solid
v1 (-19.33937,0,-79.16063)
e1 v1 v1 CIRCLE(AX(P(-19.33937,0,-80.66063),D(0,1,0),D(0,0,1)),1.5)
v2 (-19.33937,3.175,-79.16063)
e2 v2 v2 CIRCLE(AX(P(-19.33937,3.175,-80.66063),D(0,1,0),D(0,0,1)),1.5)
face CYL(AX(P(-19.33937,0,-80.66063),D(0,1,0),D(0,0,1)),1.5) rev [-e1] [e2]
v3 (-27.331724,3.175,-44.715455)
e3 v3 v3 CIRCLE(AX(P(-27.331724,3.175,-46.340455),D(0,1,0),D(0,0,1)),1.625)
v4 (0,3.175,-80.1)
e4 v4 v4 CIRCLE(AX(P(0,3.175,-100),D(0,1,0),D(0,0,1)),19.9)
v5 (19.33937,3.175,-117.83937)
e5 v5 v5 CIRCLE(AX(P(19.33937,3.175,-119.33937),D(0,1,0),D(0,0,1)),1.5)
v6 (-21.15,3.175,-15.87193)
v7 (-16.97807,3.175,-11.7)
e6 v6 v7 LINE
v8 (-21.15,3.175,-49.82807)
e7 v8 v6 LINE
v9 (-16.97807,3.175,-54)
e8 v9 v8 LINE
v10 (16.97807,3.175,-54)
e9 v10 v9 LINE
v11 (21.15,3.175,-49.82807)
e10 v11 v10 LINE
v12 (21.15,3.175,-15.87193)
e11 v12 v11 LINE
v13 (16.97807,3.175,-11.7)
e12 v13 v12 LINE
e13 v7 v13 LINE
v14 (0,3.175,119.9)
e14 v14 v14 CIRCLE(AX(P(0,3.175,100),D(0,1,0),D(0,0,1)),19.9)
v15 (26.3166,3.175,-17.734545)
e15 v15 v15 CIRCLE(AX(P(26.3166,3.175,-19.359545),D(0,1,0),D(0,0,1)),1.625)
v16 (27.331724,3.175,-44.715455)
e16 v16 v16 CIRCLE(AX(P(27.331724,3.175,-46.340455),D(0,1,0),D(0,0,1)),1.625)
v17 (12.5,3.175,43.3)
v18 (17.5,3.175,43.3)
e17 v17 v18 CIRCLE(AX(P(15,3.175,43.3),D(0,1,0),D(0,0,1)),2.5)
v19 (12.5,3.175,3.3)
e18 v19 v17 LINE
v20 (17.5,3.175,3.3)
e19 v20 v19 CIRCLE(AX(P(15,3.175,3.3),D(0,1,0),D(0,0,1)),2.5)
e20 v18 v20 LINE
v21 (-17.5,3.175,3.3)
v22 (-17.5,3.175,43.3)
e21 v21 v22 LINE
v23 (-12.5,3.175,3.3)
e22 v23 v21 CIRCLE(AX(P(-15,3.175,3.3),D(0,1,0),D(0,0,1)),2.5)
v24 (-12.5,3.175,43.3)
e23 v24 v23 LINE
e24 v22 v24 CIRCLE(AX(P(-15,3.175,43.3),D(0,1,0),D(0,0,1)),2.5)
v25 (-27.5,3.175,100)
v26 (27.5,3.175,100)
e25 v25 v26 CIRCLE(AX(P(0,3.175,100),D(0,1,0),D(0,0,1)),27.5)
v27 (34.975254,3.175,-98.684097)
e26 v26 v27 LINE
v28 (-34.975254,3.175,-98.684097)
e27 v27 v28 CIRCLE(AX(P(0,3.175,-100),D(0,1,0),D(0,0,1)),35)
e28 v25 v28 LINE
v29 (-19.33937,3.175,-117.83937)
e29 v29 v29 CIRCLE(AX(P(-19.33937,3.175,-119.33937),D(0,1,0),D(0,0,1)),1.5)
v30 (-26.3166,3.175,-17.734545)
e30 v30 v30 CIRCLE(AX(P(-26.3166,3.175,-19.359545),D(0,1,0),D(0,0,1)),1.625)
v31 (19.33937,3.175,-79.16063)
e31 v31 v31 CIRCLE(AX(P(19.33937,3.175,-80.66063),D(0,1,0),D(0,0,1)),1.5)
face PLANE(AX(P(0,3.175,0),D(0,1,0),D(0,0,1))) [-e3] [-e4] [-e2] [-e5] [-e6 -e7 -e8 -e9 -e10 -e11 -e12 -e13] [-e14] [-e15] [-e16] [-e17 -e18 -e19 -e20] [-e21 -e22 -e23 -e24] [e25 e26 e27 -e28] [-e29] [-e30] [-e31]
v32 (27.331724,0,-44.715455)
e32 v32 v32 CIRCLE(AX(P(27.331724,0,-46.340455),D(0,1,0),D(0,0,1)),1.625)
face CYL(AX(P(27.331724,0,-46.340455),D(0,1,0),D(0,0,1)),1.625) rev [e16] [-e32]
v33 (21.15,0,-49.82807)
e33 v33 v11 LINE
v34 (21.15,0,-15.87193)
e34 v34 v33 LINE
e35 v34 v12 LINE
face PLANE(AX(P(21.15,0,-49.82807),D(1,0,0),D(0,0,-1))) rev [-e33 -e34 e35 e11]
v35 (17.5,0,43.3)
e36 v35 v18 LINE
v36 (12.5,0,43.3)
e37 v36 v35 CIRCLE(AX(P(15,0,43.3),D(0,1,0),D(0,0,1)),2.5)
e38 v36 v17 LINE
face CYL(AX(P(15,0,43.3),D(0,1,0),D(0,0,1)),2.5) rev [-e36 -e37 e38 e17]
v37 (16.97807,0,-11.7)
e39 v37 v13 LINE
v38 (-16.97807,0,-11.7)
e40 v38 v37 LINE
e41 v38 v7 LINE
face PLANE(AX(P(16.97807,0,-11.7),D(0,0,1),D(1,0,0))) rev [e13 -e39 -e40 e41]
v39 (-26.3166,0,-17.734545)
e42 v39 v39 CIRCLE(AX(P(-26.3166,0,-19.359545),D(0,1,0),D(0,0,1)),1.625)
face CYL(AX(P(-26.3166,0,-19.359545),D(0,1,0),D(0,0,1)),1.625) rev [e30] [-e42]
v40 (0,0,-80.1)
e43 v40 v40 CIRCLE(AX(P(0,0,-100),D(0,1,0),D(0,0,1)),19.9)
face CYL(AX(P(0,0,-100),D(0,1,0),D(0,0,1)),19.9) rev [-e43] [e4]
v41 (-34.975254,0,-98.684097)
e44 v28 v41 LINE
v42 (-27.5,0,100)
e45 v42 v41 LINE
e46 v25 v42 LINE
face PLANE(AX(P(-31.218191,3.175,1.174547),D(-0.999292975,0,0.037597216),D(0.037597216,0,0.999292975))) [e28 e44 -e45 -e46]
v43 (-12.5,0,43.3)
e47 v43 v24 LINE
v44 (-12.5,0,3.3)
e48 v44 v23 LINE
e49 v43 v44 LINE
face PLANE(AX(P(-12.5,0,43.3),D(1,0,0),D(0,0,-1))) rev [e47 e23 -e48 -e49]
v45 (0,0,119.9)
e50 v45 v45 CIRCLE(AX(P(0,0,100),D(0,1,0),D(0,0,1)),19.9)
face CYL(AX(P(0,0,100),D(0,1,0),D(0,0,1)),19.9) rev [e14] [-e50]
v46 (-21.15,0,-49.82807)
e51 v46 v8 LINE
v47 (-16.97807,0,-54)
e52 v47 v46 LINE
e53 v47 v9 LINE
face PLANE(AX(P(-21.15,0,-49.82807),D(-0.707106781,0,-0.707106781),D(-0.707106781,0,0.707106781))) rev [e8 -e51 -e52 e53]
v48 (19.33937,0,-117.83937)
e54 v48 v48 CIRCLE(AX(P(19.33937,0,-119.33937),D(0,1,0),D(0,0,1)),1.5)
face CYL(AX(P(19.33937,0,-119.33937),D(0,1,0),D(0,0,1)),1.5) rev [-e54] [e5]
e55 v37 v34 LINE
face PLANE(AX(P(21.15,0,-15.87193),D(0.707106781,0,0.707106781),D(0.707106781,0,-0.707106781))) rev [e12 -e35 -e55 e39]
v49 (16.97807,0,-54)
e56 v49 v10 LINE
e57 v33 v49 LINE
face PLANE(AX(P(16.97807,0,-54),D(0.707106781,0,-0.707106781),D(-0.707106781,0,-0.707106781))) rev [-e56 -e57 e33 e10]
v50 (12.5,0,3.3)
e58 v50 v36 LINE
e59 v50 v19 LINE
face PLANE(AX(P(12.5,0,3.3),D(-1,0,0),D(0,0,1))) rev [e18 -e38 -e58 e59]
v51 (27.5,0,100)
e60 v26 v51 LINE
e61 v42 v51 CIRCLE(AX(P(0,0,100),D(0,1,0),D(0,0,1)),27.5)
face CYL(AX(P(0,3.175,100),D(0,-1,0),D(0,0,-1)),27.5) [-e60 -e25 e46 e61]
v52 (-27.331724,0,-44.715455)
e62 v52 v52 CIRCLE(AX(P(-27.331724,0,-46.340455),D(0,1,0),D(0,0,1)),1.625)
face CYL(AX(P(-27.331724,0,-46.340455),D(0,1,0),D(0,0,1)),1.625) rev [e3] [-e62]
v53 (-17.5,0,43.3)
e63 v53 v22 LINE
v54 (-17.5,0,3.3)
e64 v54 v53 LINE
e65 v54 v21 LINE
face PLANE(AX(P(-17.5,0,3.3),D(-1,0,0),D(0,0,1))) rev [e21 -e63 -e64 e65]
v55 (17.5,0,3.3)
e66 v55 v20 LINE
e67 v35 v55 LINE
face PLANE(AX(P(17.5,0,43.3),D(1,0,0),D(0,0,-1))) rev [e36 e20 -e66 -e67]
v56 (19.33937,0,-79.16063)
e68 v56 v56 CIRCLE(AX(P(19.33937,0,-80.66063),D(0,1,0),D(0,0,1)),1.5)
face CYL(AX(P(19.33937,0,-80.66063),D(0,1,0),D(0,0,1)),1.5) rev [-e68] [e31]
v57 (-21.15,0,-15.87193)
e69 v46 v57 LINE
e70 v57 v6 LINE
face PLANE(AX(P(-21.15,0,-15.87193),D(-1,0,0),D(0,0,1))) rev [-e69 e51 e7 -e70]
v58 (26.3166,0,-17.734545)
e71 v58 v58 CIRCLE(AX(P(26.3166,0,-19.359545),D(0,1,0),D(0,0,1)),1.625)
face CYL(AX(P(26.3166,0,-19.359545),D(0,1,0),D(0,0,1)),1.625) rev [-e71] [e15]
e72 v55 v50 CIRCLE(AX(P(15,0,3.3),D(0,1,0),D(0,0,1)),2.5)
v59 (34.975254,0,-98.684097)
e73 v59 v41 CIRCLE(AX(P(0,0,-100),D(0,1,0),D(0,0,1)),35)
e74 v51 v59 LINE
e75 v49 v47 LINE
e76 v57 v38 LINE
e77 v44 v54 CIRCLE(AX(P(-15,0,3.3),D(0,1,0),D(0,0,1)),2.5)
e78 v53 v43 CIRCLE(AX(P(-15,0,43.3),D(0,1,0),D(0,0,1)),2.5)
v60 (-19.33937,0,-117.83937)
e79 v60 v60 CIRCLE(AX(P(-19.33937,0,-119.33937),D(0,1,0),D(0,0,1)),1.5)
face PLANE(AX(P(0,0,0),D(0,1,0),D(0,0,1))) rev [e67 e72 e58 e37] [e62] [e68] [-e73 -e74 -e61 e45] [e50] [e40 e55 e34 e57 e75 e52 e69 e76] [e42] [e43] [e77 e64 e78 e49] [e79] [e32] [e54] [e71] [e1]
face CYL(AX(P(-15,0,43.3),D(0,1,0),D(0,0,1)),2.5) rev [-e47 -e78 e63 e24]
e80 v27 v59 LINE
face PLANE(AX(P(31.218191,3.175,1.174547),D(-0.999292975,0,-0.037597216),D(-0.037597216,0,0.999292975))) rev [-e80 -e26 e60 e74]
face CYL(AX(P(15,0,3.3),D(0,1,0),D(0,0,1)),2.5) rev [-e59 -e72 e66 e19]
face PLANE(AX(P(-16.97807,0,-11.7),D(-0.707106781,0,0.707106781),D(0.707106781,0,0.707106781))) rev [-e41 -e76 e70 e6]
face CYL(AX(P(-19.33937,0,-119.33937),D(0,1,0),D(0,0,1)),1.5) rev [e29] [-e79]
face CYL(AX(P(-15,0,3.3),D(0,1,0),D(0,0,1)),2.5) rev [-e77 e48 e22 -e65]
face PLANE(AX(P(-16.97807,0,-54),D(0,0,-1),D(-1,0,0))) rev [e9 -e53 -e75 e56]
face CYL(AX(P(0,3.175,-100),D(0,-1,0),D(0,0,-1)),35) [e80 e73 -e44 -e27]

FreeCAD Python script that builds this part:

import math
import FreeCAD as App
import Part
import Sketcher


def add_polygon(sketch, points):
    """Adds a closed chain of lines whose ends are joined by coincident constraints."""
    first, n = sketch.GeometryCount, len(points)
    for a, b in zip(points, points[1:] + points[:1]):
        sketch.addGeometry(Part.LineSegment(App.Vector(*a, 0), App.Vector(*b, 0)), False)
    for i in range(n):
        sketch.addConstraint(Sketcher.Constraint("Coincident", first + i, 2, first + (i + 1) % n, 1))

doc = App.newDocument("Part")
params = doc.addObject("Spreadsheet::Sheet", "Params")
for row, (alias, value) in enumerate([
    ("sketch1_radius", "35 mm"),
    ("sketch1_radius2", "27.5 mm"),
    ("pad1_length", "3.175 mm"),
    ("sketch2_diameter", "39.8 mm"),
    ("sketch3_diameter", "3 mm"),
    ("sketch4_diameter", "3.25 mm"),
    ("sketch4_length", "5.9 mm"),
    ("sketch5_radius", "2.5 mm"),
    ("sketch5_height", "40 mm"),
], start=1):
    params.set(f"A{row}", alias)
    params.set(f"B{row}", "=" + value)
    params.setAlias(f"B{row}", alias)

body = doc.addObject("PartDesign::Body", "Body")

sketch1 = body.newObject("Sketcher::SketchObject", "Sketch")
sketch1.AttachmentSupport = (doc.getObject("XZ_Plane"), [""])
sketch1.MapMode = "FlatFace"
sketch1.addGeometry([
    Part.LineSegment(App.Vector(-35, -99, 0), App.Vector(-28, 100, 0)),
    Part.ArcOfCircle(Part.Circle(App.Vector(0, 100, 0), App.Vector(0, 0, 1), 28), math.radians(0), math.radians(180)),
    Part.LineSegment(App.Vector(28, 100, 0), App.Vector(35, -99, 0)),
    Part.ArcOfCircle(Part.Circle(App.Vector(0, -100, 0), App.Vector(0, 0, 1), 35), math.radians(178), math.radians(362)),
], False)
sketch1.addConstraint([
    Sketcher.Constraint("Coincident", 0, 2, 1, 2),
    Sketcher.Constraint("Coincident", 1, 1, 2, 1),
    Sketcher.Constraint("Tangent", 2, 2, 3, 2),
    Sketcher.Constraint("Tangent", 3, 1, 0, 1),
    Sketcher.Constraint("Symmetric", 1, 3, 3, 3, -1, 1),
    Sketcher.Constraint("Symmetric", 0, 2, 1, 1, -2),
    Sketcher.Constraint("Horizontal", 1, 3, 0, 2),
    Sketcher.Constraint("Radius", 3, 35.0),
    Sketcher.Constraint("Radius", 1, 27.5),
    Sketcher.Constraint("DistanceY", -1, 1, 1, 3, 100.0),
])
sketch1.setExpression("Constraints[7]", "Params.sketch1_radius")
sketch1.setExpression("Constraints[8]", "Params.sketch1_radius2")
pad1 = body.newObject("PartDesign::Pad", "Pad")
pad1.Profile = sketch1
pad1.setExpression("Length", "Params.pad1_length")
pad1.Reversed = True

sketch2 = body.newObject("Sketcher::SketchObject", "Sketch001")
sketch2.AttachmentSupport = (doc.getObject("XZ_Plane"), [""])
sketch2.MapMode = "FlatFace"
sketch2.AttachmentOffset = App.Placement(App.Vector(0, 0, -3.175), App.Rotation())
sketch2.addGeometry([
    Part.Circle(App.Vector(0, 100, 0), App.Vector(0, 0, 1), 20),
    Part.Circle(App.Vector(0, -100, 0), App.Vector(0, 0, 1), 20),
], False)
sketch2.addConstraint([
    Sketcher.Constraint("Equal", 0, 1),
    Sketcher.Constraint("Symmetric", 0, 3, 1, 3, -1, 1),
    Sketcher.Constraint("PointOnObject", 0, 3, -2),
    Sketcher.Constraint("Diameter", 0, 39.8),
    Sketcher.Constraint("DistanceY", -1, 1, 0, 3, 100.0),
])
sketch2.setExpression("Constraints[3]", "Params.sketch2_diameter")
pocket1 = body.newObject("PartDesign::Pocket", "Pocket")
pocket1.Profile = sketch2
pocket1.Type = "ThroughAll"
pocket1.Reversed = True

sketch3 = body.newObject("Sketcher::SketchObject", "Sketch002")
sketch3.AttachmentSupport = (doc.getObject("XZ_Plane"), [""])
sketch3.MapMode = "FlatFace"
sketch3.AttachmentOffset = App.Placement(App.Vector(0, 0, -3.175), App.Rotation())
sketch3.addGeometry([
    Part.Circle(App.Vector(19.3, -80.7, 0), App.Vector(0, 0, 1), 1.5),
    Part.Circle(App.Vector(19.3, -119.3, 0), App.Vector(0, 0, 1), 1.5),
    Part.Circle(App.Vector(-19.3, -119.3, 0), App.Vector(0, 0, 1), 1.5),
    Part.Circle(App.Vector(-19.3, -80.7, 0), App.Vector(0, 0, 1), 1.5),
], False)
sketch3.addConstraint([
    Sketcher.Constraint("Equal", 0, 1),
    Sketcher.Constraint("Equal", 1, 2),
    Sketcher.Constraint("Equal", 2, 3),
    Sketcher.Constraint("Symmetric", 1, 3, 2, 3, -2),
    Sketcher.Constraint("Symmetric", 0, 3, 3, 3, -2),
    Sketcher.Constraint("Vertical", 0, 3, 1, 3),
    Sketcher.Constraint("Diameter", 0, 3.0),
    Sketcher.Constraint("DistanceX", -1, 1, 0, 3, 19.33937),
    Sketcher.Constraint("DistanceY", 0, 3, -1, 1, 80.66063),
    Sketcher.Constraint("DistanceY", 1, 3, -1, 1, 119.33937),
])
sketch3.setExpression("Constraints[6]", "Params.sketch3_diameter")
pocket2 = body.newObject("PartDesign::Pocket", "Pocket001")
pocket2.Profile = sketch3
pocket2.Type = "ThroughAll"
pocket2.Reversed = True

sketch4 = body.newObject("Sketcher::SketchObject", "Sketch003")
sketch4.AttachmentSupport = (doc.getObject("XZ_Plane"), [""])
sketch4.MapMode = "FlatFace"
sketch4.AttachmentOffset = App.Placement(App.Vector(0, 0, -3.175), App.Rotation())
sketch4.addGeometry(Part.Circle(App.Vector(-27.3, -46.3, 0), App.Vector(0, 0, 1), 1.6), False)
sketch4.addGeometry(Part.Circle(App.Vector(-26.3, -19.4, 0), App.Vector(0, 0, 1), 1.6), False)
sketch4.addGeometry(Part.Circle(App.Vector(26.3, -19.4, 0), App.Vector(0, 0, 1), 1.6), False)
sketch4.addGeometry(Part.Circle(App.Vector(27.3, -46.3, 0), App.Vector(0, 0, 1), 1.6), False)
add_polygon(sketch4, [(-17, -54), (-21.1, -49.8), (-21.1, -15.9), (-17, -11.7), (17, -11.7), (21.1, -15.9), (21.1, -49.8), (17, -54)])
sketch4.addConstraint([
    Sketcher.Constraint("Vertical", 5),
    Sketcher.Constraint("Horizontal", 7),
    Sketcher.Constraint("Vertical", 9),
    Sketcher.Constraint("Horizontal", 11),
    Sketcher.Constraint("Equal", 0, 1),
    Sketcher.Constraint("Equal", 1, 2),
    Sketcher.Constraint("Equal", 2, 3),
    Sketcher.Constraint("Symmetric", 1, 3, 2, 3, -2),
    Sketcher.Constraint("Symmetric", 0, 3, 3, 3, -2),
    Sketcher.Constraint("Symmetric", 5, 2, 8, 2, -2),
    Sketcher.Constraint("Perpendicular", 4, 6),
    Sketcher.Constraint("Perpendicular", 6, 8),
    Sketcher.Constraint("Perpendicular", 8, 10),
    Sketcher.Constraint("Horizontal", 4, 2, 9, 2),
    Sketcher.Constraint("Vertical", 7, 2, 10, 2),
    Sketcher.Constraint("Vertical", 6, 2, 11, 2),
    Sketcher.Constraint("Equal", 11, 5),
    Sketcher.Constraint("Diameter", 0, 3.25),
    Sketcher.Constraint("DistanceY", 10, 2, -1, 1, 54.0),
    Sketcher.Constraint("Distance", 4, 5.9),
    Sketcher.Constraint("DistanceY", 6, 2, -1, 1, 11.7),
    Sketcher.Constraint("DistanceX", 1, 3, -1, 1, 26.3166),
    Sketcher.Constraint("DistanceY", 0, 3, 1, 3, 26.98091),
    Sketcher.Constraint("DistanceX", 0, 3, 3, 3, 54.663449),
    Sketcher.Constraint("DistanceY", 0, 3, -1, 1, 46.340455),
])
sketch4.setExpression("Constraints[25]", "Params.sketch4_diameter")
sketch4.setExpression("Constraints[27]", "Params.sketch4_length")
pocket3 = body.newObject("PartDesign::Pocket", "Pocket002")
pocket3.Profile = sketch4
pocket3.Type = "ThroughAll"
pocket3.Reversed = True

sketch5 = body.newObject("Sketcher::SketchObject", "Sketch004")
sketch5.AttachmentSupport = (doc.getObject("XZ_Plane"), [""])
sketch5.MapMode = "FlatFace"
sketch5.AttachmentOffset = App.Placement(App.Vector(0, 0, -3.175), App.Rotation())
sketch5.addGeometry([
    Part.LineSegment(App.Vector(17.5, 43.3, 0), App.Vector(17.5, 3.3, 0)),
    Part.ArcOfCircle(Part.Circle(App.Vector(15, 3.3, 0), App.Vector(0, 0, 1), 2.5), math.radians(180), math.radians(360)),
    Part.LineSegment(App.Vector(12.5, 3.3, 0), App.Vector(12.5, 43.3, 0)),
    Part.ArcOfCircle(Part.Circle(App.Vector(15, 43.3, 0), App.Vector(0, 0, 1), 2.5), math.radians(0), math.radians(180)),
    Part.LineSegment(App.Vector(-12.5, 43.3, 0), App.Vector(-12.5, 3.3, 0)),
    Part.ArcOfCircle(Part.Circle(App.Vector(-15, 3.3, 0), App.Vector(0, 0, 1), 2.5), math.radians(180), math.radians(360)),
    Part.LineSegment(App.Vector(-17.5, 3.3, 0), App.Vector(-17.5, 43.3, 0)),
    Part.ArcOfCircle(Part.Circle(App.Vector(-15, 43.3, 0), App.Vector(0, 0, 1), 2.5), math.radians(0), math.radians(180)),
], False)
sketch5.addConstraint([
    Sketcher.Constraint("Tangent", 0, 2, 1, 2),
    Sketcher.Constraint("Tangent", 1, 1, 2, 1),
    Sketcher.Constraint("Tangent", 2, 2, 3, 2),
    Sketcher.Constraint("Tangent", 3, 1, 0, 1),
    Sketcher.Constraint("Tangent", 4, 2, 5, 2),
    Sketcher.Constraint("Tangent", 5, 1, 6, 1),
    Sketcher.Constraint("Tangent", 6, 2, 7, 2),
    Sketcher.Constraint("Tangent", 7, 1, 4, 1),
    Sketcher.Constraint("Vertical", 0),
    Sketcher.Constraint("Vertical", 2),
    Sketcher.Constraint("Vertical", 4),
    Sketcher.Constraint("Vertical", 6),
    Sketcher.Constraint("Equal", 3, 5),
    Sketcher.Constraint("Symmetric", 1, 3, 5, 3, -2),
    Sketcher.Constraint("Horizontal", 3, 3, 7, 3),
    Sketcher.Constraint("Radius", 1, 2.5),
    Sketcher.Constraint("DistanceY", 0, 2, 0, 1, 40.0),
    Sketcher.Constraint("DistanceX", -1, 1, 1, 3, 15.0),
    Sketcher.Constraint("DistanceY", -1, 1, 1, 3, 3.3),
])
sketch5.setExpression("Constraints[15]", "Params.sketch5_radius")
sketch5.setExpression("Constraints[16]", "Params.sketch5_height")
pocket4 = body.newObject("PartDesign::Pocket", "Pocket003")
pocket4.Profile = sketch5
pocket4.Type = "ThroughAll"
pocket4.Reversed = True

doc.recompute()
